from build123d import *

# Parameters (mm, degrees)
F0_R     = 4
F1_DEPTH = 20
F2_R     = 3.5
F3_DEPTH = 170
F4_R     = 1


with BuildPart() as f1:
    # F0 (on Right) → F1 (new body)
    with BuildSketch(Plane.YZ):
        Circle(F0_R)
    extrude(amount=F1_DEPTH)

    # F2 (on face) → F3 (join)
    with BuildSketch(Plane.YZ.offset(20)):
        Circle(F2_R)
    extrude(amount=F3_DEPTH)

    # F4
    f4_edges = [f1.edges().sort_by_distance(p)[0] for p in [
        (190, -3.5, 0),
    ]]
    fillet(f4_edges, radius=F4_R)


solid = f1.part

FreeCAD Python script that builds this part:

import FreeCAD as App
import Part
import Sketcher


def edges_at(feature, points):
    """Names of the edges that pass closest to the given points."""
    edges = feature.Shape.Edges
    near = lambda p: min(range(len(edges)), key=lambda i: edges[i].distToShape(Part.Vertex(*p))[0])
    return sorted({f"Edge{near(p) + 1}" for p in points})

doc = App.newDocument("Part")
params = doc.addObject("Spreadsheet::Sheet", "Params")
for row, (alias, value) in enumerate([
    ("sketch1_diameter", "8 mm"),
    ("pad1_length", "20 mm"),
    ("sketch2_diameter", "7 mm"),
    ("pad2_length", "170 mm"),
    ("fillet_radius", "1 mm"),
], start=1):
    params.set(f"A{row}", alias)
    params.set(f"B{row}", "=" + value)
    params.setAlias(f"B{row}", alias)

body = doc.addObject("PartDesign::Body", "Body")

sketch1 = doc.addObject("Sketcher::SketchObject", "Sketch")
body.addObject(sketch1)
sketch1.AttachmentSupport = (doc.YZ_Plane, [""])
sketch1.MapMode = "FlatFace"
sketch1.addGeometry(Part.Circle(App.Vector(0, 0, 0), App.Vector(0, 0, 1), 4), False)
sketch1.addConstraint(Sketcher.Constraint("Coincident", 0, 3, -1, 1))
sketch1.addConstraint(Sketcher.Constraint("Diameter", 0, 8.0))
sketch1.setExpression("Constraints[1]", "Params.sketch1_diameter")
pad1 = doc.addObject("PartDesign::Pad", "Pad")
body.addObject(pad1)
pad1.Profile = sketch1
pad1.setExpression("Length", "Params.pad1_length")

sketch2 = doc.addObject("Sketcher::SketchObject", "Sketch001")
body.addObject(sketch2)
sketch2.AttachmentSupport = (doc.YZ_Plane, [""])
sketch2.MapMode = "FlatFace"
sketch2.AttachmentOffset = App.Placement(App.Vector(0, 0, 20), App.Rotation())
sketch2.addGeometry(Part.Circle(App.Vector(0, 0, 0), App.Vector(0, 0, 1), 3.5), False)
sketch2.addConstraint(Sketcher.Constraint("Coincident", 0, 3, -1, 1))
sketch2.addConstraint(Sketcher.Constraint("Diameter", 0, 7.0))
sketch2.setExpression("Constraints[1]", "Params.sketch2_diameter")
pad2 = doc.addObject("PartDesign::Pad", "Pad001")
body.addObject(pad2)
pad2.Profile = sketch2
pad2.setExpression("Length", "Params.pad2_length")
doc.recompute()

fillet = doc.addObject("PartDesign::Fillet", "Fillet")
body.addObject(fillet)
fillet.Base = (pad2, edges_at(pad2, [(190, -3.5, 0)]))
fillet.setExpression("Radius", "Params.fillet_radius")

doc.recompute()
